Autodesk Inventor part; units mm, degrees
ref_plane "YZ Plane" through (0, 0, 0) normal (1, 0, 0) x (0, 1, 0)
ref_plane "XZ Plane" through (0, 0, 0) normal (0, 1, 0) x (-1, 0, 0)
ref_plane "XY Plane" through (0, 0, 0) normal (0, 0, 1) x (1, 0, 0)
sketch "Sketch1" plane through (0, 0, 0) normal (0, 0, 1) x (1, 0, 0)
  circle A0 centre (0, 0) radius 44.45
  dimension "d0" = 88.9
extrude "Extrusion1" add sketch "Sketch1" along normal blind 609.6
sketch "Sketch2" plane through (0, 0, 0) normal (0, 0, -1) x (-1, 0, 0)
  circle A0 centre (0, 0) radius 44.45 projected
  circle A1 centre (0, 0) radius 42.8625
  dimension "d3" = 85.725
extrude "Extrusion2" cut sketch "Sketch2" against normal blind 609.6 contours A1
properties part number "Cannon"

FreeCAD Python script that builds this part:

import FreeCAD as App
import Part
import Sketcher

V = App.Vector
Q = App.Units.Quantity

doc = App.newDocument("Part")
body = doc.addObject("PartDesign::Body", "Body")

# Sketch on XY plane
sketch1 = doc.addObject("Sketcher::SketchObject", "Sketch")
body.addObject(sketch1)
sketch1.AttachmentSupport = (doc.XY_Plane, [""])
sketch1.MapMode = "FlatFace"
sketch1.addGeometry(Part.Circle(V(0, 0, 0), V(0, 0, 1), 44), False)
sketch1.addConstraint([
    Sketcher.Constraint("Coincident", 0, 3, -1, 1),
    Sketcher.Constraint("Diameter", 0, Q("3.5 in")),
])
pad1 = doc.addObject("PartDesign::Pad", "Pad")
body.addObject(pad1)
pad1.Profile = sketch1
pad1.Length = Q("24 in")

# Sketch on XY plane
sketch2 = doc.addObject("Sketcher::SketchObject", "Sketch001")
body.addObject(sketch2)
sketch2.AttachmentSupport = (doc.XY_Plane, [""])
sketch2.MapMode = "FlatFace"
sketch2.addGeometry(Part.Circle(V(0, 0, 0), V(0, 0, 1), 43), False)
sketch2.addConstraint([
    Sketcher.Constraint("Coincident", 0, 3, -1, 1),
    Sketcher.Constraint("Diameter", 0, Q("3.375 in")),
])
pocket1 = doc.addObject("PartDesign::Pocket", "Pocket")
body.addObject(pocket1)
pocket1.Profile = sketch2
pocket1.Length = Q("24 in")
pocket1.Reversed = True

doc.recompute()
